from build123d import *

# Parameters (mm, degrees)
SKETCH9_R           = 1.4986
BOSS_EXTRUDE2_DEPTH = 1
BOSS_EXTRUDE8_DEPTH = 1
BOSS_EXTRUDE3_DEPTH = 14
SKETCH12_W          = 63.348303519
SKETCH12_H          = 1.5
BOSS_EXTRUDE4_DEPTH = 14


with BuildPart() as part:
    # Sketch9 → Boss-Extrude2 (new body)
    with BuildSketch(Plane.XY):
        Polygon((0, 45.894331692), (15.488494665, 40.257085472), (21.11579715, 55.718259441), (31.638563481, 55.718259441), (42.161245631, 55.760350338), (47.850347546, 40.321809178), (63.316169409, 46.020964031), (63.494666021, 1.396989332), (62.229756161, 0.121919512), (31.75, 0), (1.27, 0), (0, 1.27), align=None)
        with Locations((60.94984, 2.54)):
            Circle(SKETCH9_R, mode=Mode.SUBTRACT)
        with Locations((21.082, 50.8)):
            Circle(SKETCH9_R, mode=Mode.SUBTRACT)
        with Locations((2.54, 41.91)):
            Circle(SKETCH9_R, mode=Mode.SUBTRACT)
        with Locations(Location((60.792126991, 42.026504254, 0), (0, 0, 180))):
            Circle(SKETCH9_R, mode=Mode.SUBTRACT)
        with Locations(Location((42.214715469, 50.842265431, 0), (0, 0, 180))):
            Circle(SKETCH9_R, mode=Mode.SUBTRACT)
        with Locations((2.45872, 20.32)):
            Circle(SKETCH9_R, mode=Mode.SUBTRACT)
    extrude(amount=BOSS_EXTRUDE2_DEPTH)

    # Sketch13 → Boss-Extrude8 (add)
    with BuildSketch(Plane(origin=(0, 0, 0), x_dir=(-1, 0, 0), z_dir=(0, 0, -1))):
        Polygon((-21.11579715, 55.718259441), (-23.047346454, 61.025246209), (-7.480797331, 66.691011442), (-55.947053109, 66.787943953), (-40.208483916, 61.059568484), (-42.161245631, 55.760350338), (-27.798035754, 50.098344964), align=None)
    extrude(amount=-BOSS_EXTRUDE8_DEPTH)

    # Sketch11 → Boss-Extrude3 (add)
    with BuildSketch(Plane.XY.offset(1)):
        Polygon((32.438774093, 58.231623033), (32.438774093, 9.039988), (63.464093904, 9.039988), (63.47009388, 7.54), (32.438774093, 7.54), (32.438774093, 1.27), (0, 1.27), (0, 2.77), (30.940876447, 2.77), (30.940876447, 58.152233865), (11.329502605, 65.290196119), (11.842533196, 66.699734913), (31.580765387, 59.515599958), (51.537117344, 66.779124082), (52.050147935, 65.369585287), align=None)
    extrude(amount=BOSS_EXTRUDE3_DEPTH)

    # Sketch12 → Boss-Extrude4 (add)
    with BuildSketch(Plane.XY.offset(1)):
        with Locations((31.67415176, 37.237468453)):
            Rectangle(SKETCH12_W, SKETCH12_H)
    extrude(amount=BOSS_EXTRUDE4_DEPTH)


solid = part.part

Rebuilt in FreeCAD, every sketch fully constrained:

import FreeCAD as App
import Part
import Sketcher
Q = App.Units.Quantity

doc = App.newDocument("Part")
body = doc.addObject("PartDesign::Body", "Body")

# Sketch on XY plane
sketch1 = body.newObject("Sketcher::SketchObject", "Sketch")
sketch1.AttachmentSupport = (doc.getObject("XY_Plane"), [""])
sketch1.MapMode = "FlatFace"
sketch1.addGeometry([
    Part.LineSegment(App.Vector(15.5, 40.3, 0), App.Vector(0, 45.9, 0)),  # 0
    Part.LineSegment(App.Vector(0, 45.9, 0), App.Vector(0, 1.3, 0)),  # 1
    Part.LineSegment(App.Vector(0, 1.3, 0), App.Vector(1.3, 0, 0)),  # 2
    Part.LineSegment(App.Vector(1.3, 0, 0), App.Vector(31.8, 0, 0)),  # 3
    Part.LineSegment(App.Vector(31.8, 0, 0), App.Vector(62.2, 0.1, 0)),  # 4
    Part.LineSegment(App.Vector(62.2, 0.1, 0), App.Vector(63.5, 1.4, 0)),  # 5
    Part.LineSegment(App.Vector(63.5, 1.4, 0), App.Vector(63.3, 46, 0)),  # 6
    Part.LineSegment(App.Vector(63.3, 46, 0), App.Vector(47.9, 40.3, 0)),  # 7
    Part.LineSegment(App.Vector(47.9, 40.3, 0), App.Vector(42.2, 55.8, 0)),  # 8
    Part.LineSegment(App.Vector(42.2, 55.8, 0), App.Vector(31.6, 55.7, 0)),  # 9
    Part.LineSegment(App.Vector(31.6, 55.7, 0), App.Vector(21.1, 55.7, 0)),  # 10
    Part.LineSegment(App.Vector(21.1, 55.7, 0), App.Vector(15.5, 40.3, 0)),  # 11
    Part.Circle(App.Vector(60.9, 2.5, 0), App.Vector(0, 0, 1), 1.5),  # 12
    Part.Circle(App.Vector(2.5, 20.3, 0), App.Vector(0, 0, 1), 1.5),  # 13
    Part.Circle(App.Vector(60.8, 42, 0), App.Vector(0, 0, 1), 1.5),  # 14
    Part.Circle(App.Vector(42.2, 50.8, 0), App.Vector(0, 0, 1), 1.5),  # 15
    Part.Circle(App.Vector(21.1, 50.8, 0), App.Vector(0, 0, 1), 1.5),  # 16
    Part.Circle(App.Vector(2.5, 41.9, 0), App.Vector(0, 0, 1), 1.5),  # 17
], False)
sketch1.addConstraint([
    Sketcher.Constraint("Coincident", 0, 2, 1, 1),
    Sketcher.Constraint("Coincident", 1, 2, 2, 1),
    Sketcher.Constraint("Coincident", 2, 2, 3, 1),
    Sketcher.Constraint("Coincident", 3, 2, 4, 1),
    Sketcher.Constraint("Coincident", 4, 2, 5, 1),
    Sketcher.Constraint("Coincident", 5, 2, 6, 1),
    Sketcher.Constraint("Coincident", 6, 2, 7, 1),
    Sketcher.Constraint("Coincident", 7, 2, 8, 1),
    Sketcher.Constraint("Coincident", 8, 2, 9, 1),
    Sketcher.Constraint("Coincident", 9, 2, 10, 1),
    Sketcher.Constraint("Coincident", 10, 2, 11, 1),
    Sketcher.Constraint("Coincident", 11, 2, 0, 1),
    Sketcher.Constraint("Vertical", 1),
    Sketcher.Constraint("Horizontal", 3),
    Sketcher.Constraint("Horizontal", 10),
    Sketcher.Constraint("Equal", 12, 13),
    Sketcher.Constraint("Equal", 13, 14),
    Sketcher.Constraint("Equal", 14, 15),
    Sketcher.Constraint("Equal", 15, 16),
    Sketcher.Constraint("Equal", 16, 17),
    Sketcher.Constraint("PointOnObject", 0, 2, -2),
    Sketcher.Constraint("PointOnObject", 2, 2, -1),
    Sketcher.Constraint("Perpendicular", 4, 6),
    Sketcher.Constraint("Perpendicular", 7, 8),
    Sketcher.Constraint("Perpendicular", 6, 9),
    Sketcher.Constraint("Perpendicular", 0, 11),
    Sketcher.Constraint("Equal", 2, 5),
    Sketcher.Constraint("Equal", 0, 7),
    Sketcher.Constraint("Equal", 8, 11),
    Sketcher.Constraint("Angle", 2, Q("-45 deg")),
    Sketcher.Constraint("Diameter", 12, Q("2.9972 mm")),
    Sketcher.Constraint("DistanceX", 3, 1, 3, 2, Q("30.48 mm")),
    Sketcher.Constraint("DistanceY", -1, 1, 16, 3, Q("50.8 mm")),
    Sketcher.Constraint("Distance", 4, Q("30.48 mm")),
    Sketcher.Constraint("DistanceY", -1, 1, 12, 3, Q("2.54 mm")),
    Sketcher.Constraint("DistanceY", -1, 1, 13, 3, Q("20.32 mm")),
    Sketcher.Constraint("DistanceX", -1, 1, 17, 3, Q("2.54 mm")),
    Sketcher.Constraint("DistanceY", -1, 1, 17, 3, Q("41.91 mm")),
    Sketcher.Constraint("DistanceY", -1, 1, 1, 2, Q("1.27 mm")),
    Sketcher.Constraint("DistanceX", -1, 1, 16, 3, Q("21.082 mm")),
    Sketcher.Constraint("Distance", 8, Q("16.453402 mm")),
    Sketcher.Constraint("DistanceY", 1, 2, 1, 1, Q("44.624332 mm")),
    Sketcher.Constraint("DistanceY", 6, 2, 15, 3, Q("4.821301 mm")),
    Sketcher.Constraint("DistanceX", 8, 2, 7, 2, Q("5.689102 mm")),
    Sketcher.Constraint("Distance", 6, Q("44.624332 mm")),
    Sketcher.Constraint("DistanceX", 10, 2, 10, 1, Q("10.522766 mm")),
    Sketcher.Constraint("DistanceX", -1, 1, 12, 3, Q("60.94984 mm")),
    Sketcher.Constraint("DistanceX", -1, 1, 13, 3, Q("2.45872 mm")),
    Sketcher.Constraint("DistanceY", -1, 1, 4, 2, Q("0.12192 mm")),
    Sketcher.Constraint("DistanceY", -1, 1, 5, 2, Q("1.396989 mm")),
    Sketcher.Constraint("DistanceY", -1, 1, 7, 2, Q("40.321809 mm")),
    Sketcher.Constraint("DistanceX", 15, 3, 14, 3, Q("18.577412 mm")),
    Sketcher.Constraint("DistanceY", 14, 3, 15, 3, Q("8.815761 mm")),
    Sketcher.Constraint("DistanceX", 14, 3, 4, 2, Q("1.437629 mm")),
])
pad1 = body.newObject("PartDesign::Pad", "Pad")
pad1.Profile = sketch1
pad1.Length = 1

# Sketch on XY plane
sketch2 = body.newObject("Sketcher::SketchObject", "Sketch001")
sketch2.AttachmentSupport = (doc.getObject("XY_Plane"), [""])
sketch2.MapMode = "FlatFace"
sketch2.addGeometry([
    Part.LineSegment(App.Vector(21, 56, 0), App.Vector(23, 61, 0)),  # 0
    Part.LineSegment(App.Vector(23, 61, 0), App.Vector(7, 67, 0)),  # 1
    Part.LineSegment(App.Vector(7, 67, 0), App.Vector(56, 67, 0)),  # 2
    Part.LineSegment(App.Vector(56, 67, 0), App.Vector(40, 61, 0)),  # 3
    Part.LineSegment(App.Vector(40, 61, 0), App.Vector(42, 56, 0)),  # 4
    Part.LineSegment(App.Vector(42, 56, 0), App.Vector(28, 50, 0)),  # 5
    Part.LineSegment(App.Vector(28, 50, 0), App.Vector(21, 56, 0)),  # 6
], False)
sketch2.addConstraint([
    Sketcher.Constraint("Coincident", 0, 2, 1, 1),
    Sketcher.Constraint("Coincident", 1, 2, 2, 1),
    Sketcher.Constraint("Coincident", 2, 2, 3, 1),
    Sketcher.Constraint("Coincident", 3, 2, 4, 1),
    Sketcher.Constraint("Coincident", 4, 2, 5, 1),
    Sketcher.Constraint("Coincident", 5, 2, 6, 1),
    Sketcher.Constraint("Coincident", 6, 2, 0, 1),
    Sketcher.Constraint("Equal", 0, 4),
    Sketcher.Constraint("Angle", 1, Q("159.999985 deg")),
    Sketcher.Constraint("Angle", 3, Q("-159.999985 deg")),
    Sketcher.Constraint("DistanceX", 1, 2, 6, 2, Q("13.635 mm")),
    Sketcher.Constraint("DistanceX", 0, 2, 4, 2, Q("19.113899 mm")),
    Sketcher.Constraint("DistanceY", 5, 2, 0, 2, Q("10.926901 mm")),
    Sketcher.Constraint("DistanceY", 5, 2, 2, 2, Q("16.689599 mm")),
    Sketcher.Constraint("Distance", 6, Q("8.731309 mm")),
    Sketcher.Constraint("DistanceY", -1, 1, 1, 2, Q("66.691011 mm")),
    Sketcher.Constraint("DistanceY", -1, 1, 3, 2, Q("61.059568 mm")),
    Sketcher.Constraint("DistanceY", -1, 1, 4, 2, Q("55.76035 mm")),
    Sketcher.Constraint("DistanceY", -1, 1, 6, 2, Q("55.718259 mm")),
    Sketcher.Constraint("DistanceX", 1, 2, 0, 2, Q("15.566549 mm")),
    Sketcher.Constraint("DistanceX", -1, 1, 0, 2, Q("23.047346 mm")),
])
pad2 = body.newObject("PartDesign::Pad", "Pad001")
pad2.Profile = sketch2
pad2.Length = 1

# Sketch on XY plane
sketch3 = body.newObject("Sketcher::SketchObject", "Sketch002")
sketch3.AttachmentSupport = (doc.getObject("XY_Plane"), [""])
sketch3.MapMode = "FlatFace"
sketch3.AttachmentOffset = App.Placement(App.Vector(0, 0, 1), App.Rotation())
sketch3.addGeometry([
    Part.LineSegment(App.Vector(32.4, 9, 0), App.Vector(32.4, 58.2, 0)),  # 0
    Part.LineSegment(App.Vector(32.4, 58.2, 0), App.Vector(52.1, 65.4, 0)),  # 1
    Part.LineSegment(App.Vector(52.1, 65.4, 0), App.Vector(51.5, 66.8, 0)),  # 2
    Part.LineSegment(App.Vector(51.5, 66.8, 0), App.Vector(31.6, 59.5, 0)),  # 3
    Part.LineSegment(App.Vector(31.6, 59.5, 0), App.Vector(11.8, 66.7, 0)),  # 4
    Part.LineSegment(App.Vector(11.8, 66.7, 0), App.Vector(11.3, 65.3, 0)),  # 5
    Part.LineSegment(App.Vector(11.3, 65.3, 0), App.Vector(30.9, 58.2, 0)),  # 6
    Part.LineSegment(App.Vector(30.9, 58.2, 0), App.Vector(30.9, 2.8, 0)),  # 7
    Part.LineSegment(App.Vector(30.9, 2.8, 0), App.Vector(0, 2.8, 0)),  # 8
    Part.LineSegment(App.Vector(0, 2.8, 0), App.Vector(0, 1.3, 0)),  # 9
    Part.LineSegment(App.Vector(0, 1.3, 0), App.Vector(32.4, 1.3, 0)),  # 10
    Part.LineSegment(App.Vector(32.4, 1.3, 0), App.Vector(32.4, 7.5, 0)),  # 11
    Part.LineSegment(App.Vector(32.4, 7.5, 0), App.Vector(63.5, 7.5, 0)),  # 12
    Part.LineSegment(App.Vector(63.5, 7.5, 0), App.Vector(63.5, 9, 0)),  # 13
    Part.LineSegment(App.Vector(63.5, 9, 0), App.Vector(32.4, 9, 0)),  # 14
], False)
sketch3.addConstraint([
    Sketcher.Constraint("Coincident", 0, 2, 1, 1),
    Sketcher.Constraint("Coincident", 1, 2, 2, 1),
    Sketcher.Constraint("Coincident", 2, 2, 3, 1),
    Sketcher.Constraint("Coincident", 3, 2, 4, 1),
    Sketcher.Constraint("Coincident", 4, 2, 5, 1),
    Sketcher.Constraint("Coincident", 5, 2, 6, 1),
    Sketcher.Constraint("Coincident", 6, 2, 7, 1),
    Sketcher.Constraint("Coincident", 7, 2, 8, 1),
    Sketcher.Constraint("Coincident", 8, 2, 9, 1),
    Sketcher.Constraint("Coincident", 9, 2, 10, 1),
    Sketcher.Constraint("Coincident", 10, 2, 11, 1),
    Sketcher.Constraint("Coincident", 11, 2, 12, 1),
    Sketcher.Constraint("Coincident", 12, 2, 13, 1),
    Sketcher.Constraint("Coincident", 13, 2, 14, 1),
    Sketcher.Constraint("Coincident", 14, 2, 0, 1),
    Sketcher.Constraint("Vertical", 0),
    Sketcher.Constraint("Vertical", 7),
    Sketcher.Constraint("Horizontal", 8),
    Sketcher.Constraint("Vertical", 9),
    Sketcher.Constraint("Horizontal", 10),
    Sketcher.Constraint("Vertical", 11),
    Sketcher.Constraint("Horizontal", 12),
    Sketcher.Constraint("Horizontal", 14),
    Sketcher.Constraint("PointOnObject", 8, 2, -2),
    Sketcher.Constraint("Perpendicular", 1, 2),
    Sketcher.Constraint("Perpendicular", 2, 3),
    Sketcher.Constraint("Perpendicular", 4, 5),
    Sketcher.Constraint("Perpendicular", 5, 6),
    Sketcher.Constraint("Vertical", 0, 2, 10, 2),
    Sketcher.Constraint("Equal", 2, 5),
    Sketcher.Constraint("Equal", 1, 6),
    Sketcher.Constraint("Equal", 5, 13),
    Sketcher.Constraint("Angle", 1, Q("20.000015 deg")),
    Sketcher.Constraint("Angle", 4, Q("159.999985 deg")),
    Sketcher.Constraint("DistanceY", 9, 2, 9, 1, Q("1.5 mm")),
    Sketcher.Constraint("Distance", 2, Q("1.5 mm")),
    Sketcher.Constraint("DistanceY", 11, 1, 11, 2, Q("6.27 mm")),
    Sketcher.Constraint("DistanceY", -1, 1, 7, 2, Q("2.77 mm")),
    Sketcher.Constraint("DistanceX", 13, 2, 12, 2, Q("0.006 mm")),
    Sketcher.Constraint("DistanceX", 12, 1, 12, 2, Q("31.03132 mm")),
    Sketcher.Constraint("DistanceY", -1, 1, 3, 2, Q("59.5156 mm")),
    Sketcher.Constraint("DistanceY", 0, 2, 2, 2, Q("8.547501 mm")),
    Sketcher.Constraint("Distance", 3, Q("21.237108 mm")),
    Sketcher.Constraint("Distance", 4, Q("21.00499 mm")),
    Sketcher.Constraint("DistanceX", 8, 2, 8, 1, Q("30.940876 mm")),
])
pad3 = body.newObject("PartDesign::Pad", "Pad002")
pad3.Profile = sketch3
pad3.Length = 14

# Sketch on XY plane
sketch4 = body.newObject("Sketcher::SketchObject", "Sketch003")
sketch4.AttachmentSupport = (doc.getObject("XY_Plane"), [""])
sketch4.MapMode = "FlatFace"
sketch4.AttachmentOffset = App.Placement(App.Vector(0, 0, 1), App.Rotation())
sketch4.addGeometry([
    Part.LineSegment(App.Vector(0, 38, 0), App.Vector(0, 36.5, 0)),
    Part.LineSegment(App.Vector(0, 36.5, 0), App.Vector(63.3, 36.5, 0)),
    Part.LineSegment(App.Vector(63.3, 36.5, 0), App.Vector(63.3, 38, 0)),
    Part.LineSegment(App.Vector(63.3, 38, 0), App.Vector(0, 38, 0)),
], False)
sketch4.addConstraint([
    Sketcher.Constraint("Coincident", 0, 2, 1, 1),
    Sketcher.Constraint("Coincident", 1, 2, 2, 1),
    Sketcher.Constraint("Coincident", 2, 2, 3, 1),
    Sketcher.Constraint("Coincident", 3, 2, 0, 1),
    Sketcher.Constraint("Vertical", 0),
    Sketcher.Constraint("Horizontal", 1),
    Sketcher.Constraint("Vertical", 2),
    Sketcher.Constraint("Horizontal", 3),
    Sketcher.Constraint("PointOnObject", 0, 2, -2),
    Sketcher.Constraint("DistanceY", 0, 2, 0, 1, Q("1.5 mm")),
    Sketcher.Constraint("DistanceX", 1, 1, 1, 2, Q("63.348304 mm")),
    Sketcher.Constraint("DistanceY", -1, 1, 0, 2, Q("36.487468 mm")),
])
pad4 = body.newObject("PartDesign::Pad", "Pad003")
pad4.Profile = sketch4
pad4.Length = 14

doc.recompute()
